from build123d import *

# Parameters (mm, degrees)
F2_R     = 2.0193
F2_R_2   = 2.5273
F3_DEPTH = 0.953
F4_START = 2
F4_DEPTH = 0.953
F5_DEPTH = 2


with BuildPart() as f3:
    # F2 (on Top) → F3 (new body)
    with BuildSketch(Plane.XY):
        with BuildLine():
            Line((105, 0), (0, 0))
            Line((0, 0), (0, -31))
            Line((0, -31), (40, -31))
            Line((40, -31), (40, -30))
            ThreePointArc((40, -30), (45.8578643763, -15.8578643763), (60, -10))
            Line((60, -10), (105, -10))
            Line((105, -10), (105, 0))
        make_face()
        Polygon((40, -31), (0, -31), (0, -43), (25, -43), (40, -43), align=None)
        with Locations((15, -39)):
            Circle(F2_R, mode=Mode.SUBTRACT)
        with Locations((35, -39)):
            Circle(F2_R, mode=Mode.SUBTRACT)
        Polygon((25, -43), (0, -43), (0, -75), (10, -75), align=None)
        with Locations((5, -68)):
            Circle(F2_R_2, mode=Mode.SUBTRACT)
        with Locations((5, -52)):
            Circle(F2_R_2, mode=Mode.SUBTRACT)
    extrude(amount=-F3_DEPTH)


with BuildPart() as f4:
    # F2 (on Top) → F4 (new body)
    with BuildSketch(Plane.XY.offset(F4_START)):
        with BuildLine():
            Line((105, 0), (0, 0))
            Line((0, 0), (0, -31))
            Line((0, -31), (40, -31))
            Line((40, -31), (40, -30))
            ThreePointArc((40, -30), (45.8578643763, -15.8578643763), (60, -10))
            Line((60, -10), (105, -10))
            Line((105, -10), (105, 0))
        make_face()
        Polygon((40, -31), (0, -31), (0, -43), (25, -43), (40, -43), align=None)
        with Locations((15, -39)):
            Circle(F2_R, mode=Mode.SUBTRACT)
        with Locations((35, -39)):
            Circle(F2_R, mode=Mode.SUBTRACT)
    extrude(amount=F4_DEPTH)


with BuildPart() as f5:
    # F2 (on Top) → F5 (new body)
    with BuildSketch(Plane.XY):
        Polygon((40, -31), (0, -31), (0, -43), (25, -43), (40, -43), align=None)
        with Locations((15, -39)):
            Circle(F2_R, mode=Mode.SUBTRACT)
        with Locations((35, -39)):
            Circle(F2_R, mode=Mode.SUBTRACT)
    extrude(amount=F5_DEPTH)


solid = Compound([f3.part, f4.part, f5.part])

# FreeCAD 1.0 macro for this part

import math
import FreeCAD as App
import Part
import Sketcher
Q = App.Units.Quantity


def add_polygon(sketch, points):
    """Adds a closed chain of lines whose ends are joined by coincident constraints."""
    first, n = sketch.GeometryCount, len(points)
    for a, b in zip(points, points[1:] + points[:1]):
        sketch.addGeometry(Part.LineSegment(App.Vector(*a, 0), App.Vector(*b, 0)), False)
    for i in range(n):
        sketch.addConstraint(Sketcher.Constraint("Coincident", first + i, 2, first + (i + 1) % n, 1))

doc = App.newDocument("Part")
body = doc.addObject("PartDesign::Body", "Body")

sketch1 = doc.addObject("Sketcher::SketchObject", "Sketch")
body.addObject(sketch1)
sketch1.AttachmentSupport = (doc.XY_Plane, [""])
sketch1.MapMode = "FlatFace"
sketch1.addGeometry([
    Part.LineSegment(App.Vector(105, 0, 0), App.Vector(0, 0, 0)),
    Part.LineSegment(App.Vector(0, 0, 0), App.Vector(0, -75, 0)),
    Part.LineSegment(App.Vector(0, -75, 0), App.Vector(10, -75, 0)),
    Part.LineSegment(App.Vector(10, -75, 0), App.Vector(25, -43, 0)),
    Part.LineSegment(App.Vector(25, -43, 0), App.Vector(40, -43, 0)),
    Part.LineSegment(App.Vector(40, -43, 0), App.Vector(40, -30, 0)),
    Part.ArcOfCircle(Part.Circle(App.Vector(60, -30, 0), App.Vector(0, 0, 1), 20), math.radians(90), math.radians(180)),
    Part.LineSegment(App.Vector(60, -10, 0), App.Vector(105, -10, 0)),
    Part.LineSegment(App.Vector(105, -10, 0), App.Vector(105, 0, 0)),
    Part.Circle(App.Vector(5, -68, 0), App.Vector(0, 0, 1), 2.5273),
    Part.Circle(App.Vector(5, -52, 0), App.Vector(0, 0, 1), 2.5273),
    Part.Circle(App.Vector(15, -39, 0), App.Vector(0, 0, 1), 2.0193),
    Part.Circle(App.Vector(35, -39, 0), App.Vector(0, 0, 1), 2.0193),
], False)
sketch1.addConstraint([
    Sketcher.Constraint("Coincident", 0, 2, 1, 1),
    Sketcher.Constraint("Coincident", 1, 2, 2, 1),
    Sketcher.Constraint("Coincident", 2, 2, 3, 1),
    Sketcher.Constraint("Coincident", 3, 2, 4, 1),
    Sketcher.Constraint("Coincident", 4, 2, 5, 1),
    Sketcher.Constraint("Tangent", 5, 2, 6, 2),
    Sketcher.Constraint("Tangent", 6, 1, 7, 1),
    Sketcher.Constraint("Coincident", 7, 2, 8, 1),
    Sketcher.Constraint("Coincident", 8, 2, 0, 1),
    Sketcher.Constraint("Horizontal", 0),
    Sketcher.Constraint("Vertical", 1),
    Sketcher.Constraint("Horizontal", 2),
    Sketcher.Constraint("Horizontal", 4),
    Sketcher.Constraint("Vertical", 5),
    Sketcher.Constraint("Horizontal", 7),
    Sketcher.Constraint("Vertical", 8),
    Sketcher.Constraint("Coincident", 0, 2, -1, 1),
    Sketcher.Constraint("Equal", 9, 10),
    Sketcher.Constraint("Equal", 11, 12),
    Sketcher.Constraint("Horizontal", 11, 3, 12, 3),
    Sketcher.Constraint("Vertical", 9, 3, 10, 3),
    Sketcher.Constraint("Equal", 2, 8),
    Sketcher.Constraint("Radius", 6, Q("20 mm")),
    Sketcher.Constraint("DistanceX", 0, 2, 0, 1, Q("105 mm")),
    Sketcher.Constraint("DistanceX", 2, 1, 2, 2, Q("10 mm")),
    Sketcher.Constraint("DistanceX", 4, 1, 4, 2, Q("15 mm")),
    Sketcher.Constraint("DistanceX", 7, 1, 7, 2, Q("45 mm")),
    Sketcher.Constraint("DistanceY", 1, 2, 1, 1, Q("75 mm")),
    Sketcher.Constraint("DistanceY", 5, 1, 5, 2, Q("13 mm")),
    Sketcher.Constraint("DistanceX", -1, 1, 9, 3, Q("5 mm")),
    Sketcher.Constraint("DistanceY", 9, 3, -1, 1, Q("68 mm")),
    Sketcher.Constraint("DistanceY", 10, 3, -1, 1, Q("52 mm")),
    Sketcher.Constraint("DistanceX", -1, 1, 11, 3, Q("15 mm")),
    Sketcher.Constraint("DistanceY", 11, 3, -1, 1, Q("39 mm")),
    Sketcher.Constraint("DistanceX", -1, 1, 12, 3, Q("35 mm")),
    Sketcher.Constraint("Diameter", 9, Q("5.0546 mm")),
    Sketcher.Constraint("Diameter", 11, Q("4.0386 mm")),
])
pad1 = doc.addObject("PartDesign::Pad", "Pad")
body.addObject(pad1)
pad1.Profile = sketch1
pad1.Length = 0.953
pad1.Reversed = True
body2 = doc.addObject("PartDesign::Body", "Body001")

sketch2 = doc.addObject("Sketcher::SketchObject", "Sketch001")
body2.addObject(sketch2)
sketch2.AttachmentSupport = (doc.getObject("XY_Plane001"), [""])
sketch2.MapMode = "FlatFace"
sketch2.AttachmentOffset = App.Placement(App.Vector(0, 0, 2), App.Rotation())
sketch2.addGeometry([
    Part.LineSegment(App.Vector(105, 0, 0), App.Vector(0, 0, 0)),
    Part.LineSegment(App.Vector(0, 0, 0), App.Vector(0, -43, 0)),
    Part.LineSegment(App.Vector(0, -43, 0), App.Vector(40, -43, 0)),
    Part.LineSegment(App.Vector(40, -43, 0), App.Vector(40, -30, 0)),
    Part.ArcOfCircle(Part.Circle(App.Vector(60, -30, 0), App.Vector(0, 0, 1), 20), math.radians(90), math.radians(180)),
    Part.LineSegment(App.Vector(60, -10, 0), App.Vector(105, -10, 0)),
    Part.LineSegment(App.Vector(105, -10, 0), App.Vector(105, 0, 0)),
    Part.Circle(App.Vector(15, -39, 0), App.Vector(0, 0, 1), 2.0193),
    Part.Circle(App.Vector(35, -39, 0), App.Vector(0, 0, 1), 2.0193),
], False)
sketch2.addConstraint([
    Sketcher.Constraint("Coincident", 0, 2, 1, 1),
    Sketcher.Constraint("Coincident", 1, 2, 2, 1),
    Sketcher.Constraint("Coincident", 2, 2, 3, 1),
    Sketcher.Constraint("Tangent", 3, 2, 4, 2),
    Sketcher.Constraint("Tangent", 4, 1, 5, 1),
    Sketcher.Constraint("Coincident", 5, 2, 6, 1),
    Sketcher.Constraint("Coincident", 6, 2, 0, 1),
    Sketcher.Constraint("Horizontal", 0),
    Sketcher.Constraint("Vertical", 1),
    Sketcher.Constraint("Horizontal", 2),
    Sketcher.Constraint("Vertical", 3),
    Sketcher.Constraint("Horizontal", 5),
    Sketcher.Constraint("Vertical", 6),
    Sketcher.Constraint("Coincident", 0, 2, -1, 1),
    Sketcher.Constraint("Equal", 7, 8),
    Sketcher.Constraint("Horizontal", 7, 3, 8, 3),
    Sketcher.Constraint("Radius", 4, Q("20 mm")),
    Sketcher.Constraint("DistanceX", 0, 2, 0, 1, Q("105 mm")),
    Sketcher.Constraint("DistanceX", 2, 1, 2, 2, Q("40 mm")),
    Sketcher.Constraint("DistanceY", 1, 2, 1, 1, Q("43 mm")),
    Sketcher.Constraint("DistanceY", 3, 1, 3, 2, Q("13 mm")),
    Sketcher.Constraint("DistanceX", -1, 1, 7, 3, Q("15 mm")),
    Sketcher.Constraint("DistanceY", 7, 3, -1, 1, Q("39 mm")),
    Sketcher.Constraint("DistanceX", -1, 1, 8, 3, Q("35 mm")),
    Sketcher.Constraint("Diameter", 7, Q("4.0386 mm")),
])
pad2 = doc.addObject("PartDesign::Pad", "Pad001")
body2.addObject(pad2)
pad2.Profile = sketch2
pad2.Length = 0.953
body3 = doc.addObject("PartDesign::Body", "Body002")

sketch3 = doc.addObject("Sketcher::SketchObject", "Sketch002")
body3.addObject(sketch3)
sketch3.AttachmentSupport = (doc.getObject("XY_Plane002"), [""])
sketch3.MapMode = "FlatFace"
add_polygon(sketch3, [(40, -31), (0, -31), (0, -43), (40, -43)])
sketch3.addGeometry(Part.Circle(App.Vector(15, -39, 0), App.Vector(0, 0, 1), 2.0193), False)
sketch3.addGeometry(Part.Circle(App.Vector(35, -39, 0), App.Vector(0, 0, 1), 2.0193), False)
sketch3.addConstraint([
    Sketcher.Constraint("Horizontal", 0),
    Sketcher.Constraint("Vertical", 1),
    Sketcher.Constraint("Horizontal", 2),
    Sketcher.Constraint("Vertical", 3),
    Sketcher.Constraint("Equal", 4, 5),
    Sketcher.Constraint("PointOnObject", 0, 2, -2),
    Sketcher.Constraint("Horizontal", 4, 3, 5, 3),
    Sketcher.Constraint("DistanceX", 0, 2, 0, 1, Q("40 mm")),
    Sketcher.Constraint("DistanceY", 1, 2, 1, 1, Q("12 mm")),
    Sketcher.Constraint("DistanceX", -1, 1, 4, 3, Q("15 mm")),
    Sketcher.Constraint("DistanceY", 4, 3, -1, 1, Q("39 mm")),
    Sketcher.Constraint("DistanceX", -1, 1, 5, 3, Q("35 mm")),
    Sketcher.Constraint("DistanceY", 0, 2, -1, 1, Q("31 mm")),
    Sketcher.Constraint("Diameter", 4, Q("4.0386 mm")),
])
pad3 = doc.addObject("PartDesign::Pad", "Pad002")
body3.addObject(pad3)
pad3.Profile = sketch3
pad3.Length = 2

doc.recompute()
